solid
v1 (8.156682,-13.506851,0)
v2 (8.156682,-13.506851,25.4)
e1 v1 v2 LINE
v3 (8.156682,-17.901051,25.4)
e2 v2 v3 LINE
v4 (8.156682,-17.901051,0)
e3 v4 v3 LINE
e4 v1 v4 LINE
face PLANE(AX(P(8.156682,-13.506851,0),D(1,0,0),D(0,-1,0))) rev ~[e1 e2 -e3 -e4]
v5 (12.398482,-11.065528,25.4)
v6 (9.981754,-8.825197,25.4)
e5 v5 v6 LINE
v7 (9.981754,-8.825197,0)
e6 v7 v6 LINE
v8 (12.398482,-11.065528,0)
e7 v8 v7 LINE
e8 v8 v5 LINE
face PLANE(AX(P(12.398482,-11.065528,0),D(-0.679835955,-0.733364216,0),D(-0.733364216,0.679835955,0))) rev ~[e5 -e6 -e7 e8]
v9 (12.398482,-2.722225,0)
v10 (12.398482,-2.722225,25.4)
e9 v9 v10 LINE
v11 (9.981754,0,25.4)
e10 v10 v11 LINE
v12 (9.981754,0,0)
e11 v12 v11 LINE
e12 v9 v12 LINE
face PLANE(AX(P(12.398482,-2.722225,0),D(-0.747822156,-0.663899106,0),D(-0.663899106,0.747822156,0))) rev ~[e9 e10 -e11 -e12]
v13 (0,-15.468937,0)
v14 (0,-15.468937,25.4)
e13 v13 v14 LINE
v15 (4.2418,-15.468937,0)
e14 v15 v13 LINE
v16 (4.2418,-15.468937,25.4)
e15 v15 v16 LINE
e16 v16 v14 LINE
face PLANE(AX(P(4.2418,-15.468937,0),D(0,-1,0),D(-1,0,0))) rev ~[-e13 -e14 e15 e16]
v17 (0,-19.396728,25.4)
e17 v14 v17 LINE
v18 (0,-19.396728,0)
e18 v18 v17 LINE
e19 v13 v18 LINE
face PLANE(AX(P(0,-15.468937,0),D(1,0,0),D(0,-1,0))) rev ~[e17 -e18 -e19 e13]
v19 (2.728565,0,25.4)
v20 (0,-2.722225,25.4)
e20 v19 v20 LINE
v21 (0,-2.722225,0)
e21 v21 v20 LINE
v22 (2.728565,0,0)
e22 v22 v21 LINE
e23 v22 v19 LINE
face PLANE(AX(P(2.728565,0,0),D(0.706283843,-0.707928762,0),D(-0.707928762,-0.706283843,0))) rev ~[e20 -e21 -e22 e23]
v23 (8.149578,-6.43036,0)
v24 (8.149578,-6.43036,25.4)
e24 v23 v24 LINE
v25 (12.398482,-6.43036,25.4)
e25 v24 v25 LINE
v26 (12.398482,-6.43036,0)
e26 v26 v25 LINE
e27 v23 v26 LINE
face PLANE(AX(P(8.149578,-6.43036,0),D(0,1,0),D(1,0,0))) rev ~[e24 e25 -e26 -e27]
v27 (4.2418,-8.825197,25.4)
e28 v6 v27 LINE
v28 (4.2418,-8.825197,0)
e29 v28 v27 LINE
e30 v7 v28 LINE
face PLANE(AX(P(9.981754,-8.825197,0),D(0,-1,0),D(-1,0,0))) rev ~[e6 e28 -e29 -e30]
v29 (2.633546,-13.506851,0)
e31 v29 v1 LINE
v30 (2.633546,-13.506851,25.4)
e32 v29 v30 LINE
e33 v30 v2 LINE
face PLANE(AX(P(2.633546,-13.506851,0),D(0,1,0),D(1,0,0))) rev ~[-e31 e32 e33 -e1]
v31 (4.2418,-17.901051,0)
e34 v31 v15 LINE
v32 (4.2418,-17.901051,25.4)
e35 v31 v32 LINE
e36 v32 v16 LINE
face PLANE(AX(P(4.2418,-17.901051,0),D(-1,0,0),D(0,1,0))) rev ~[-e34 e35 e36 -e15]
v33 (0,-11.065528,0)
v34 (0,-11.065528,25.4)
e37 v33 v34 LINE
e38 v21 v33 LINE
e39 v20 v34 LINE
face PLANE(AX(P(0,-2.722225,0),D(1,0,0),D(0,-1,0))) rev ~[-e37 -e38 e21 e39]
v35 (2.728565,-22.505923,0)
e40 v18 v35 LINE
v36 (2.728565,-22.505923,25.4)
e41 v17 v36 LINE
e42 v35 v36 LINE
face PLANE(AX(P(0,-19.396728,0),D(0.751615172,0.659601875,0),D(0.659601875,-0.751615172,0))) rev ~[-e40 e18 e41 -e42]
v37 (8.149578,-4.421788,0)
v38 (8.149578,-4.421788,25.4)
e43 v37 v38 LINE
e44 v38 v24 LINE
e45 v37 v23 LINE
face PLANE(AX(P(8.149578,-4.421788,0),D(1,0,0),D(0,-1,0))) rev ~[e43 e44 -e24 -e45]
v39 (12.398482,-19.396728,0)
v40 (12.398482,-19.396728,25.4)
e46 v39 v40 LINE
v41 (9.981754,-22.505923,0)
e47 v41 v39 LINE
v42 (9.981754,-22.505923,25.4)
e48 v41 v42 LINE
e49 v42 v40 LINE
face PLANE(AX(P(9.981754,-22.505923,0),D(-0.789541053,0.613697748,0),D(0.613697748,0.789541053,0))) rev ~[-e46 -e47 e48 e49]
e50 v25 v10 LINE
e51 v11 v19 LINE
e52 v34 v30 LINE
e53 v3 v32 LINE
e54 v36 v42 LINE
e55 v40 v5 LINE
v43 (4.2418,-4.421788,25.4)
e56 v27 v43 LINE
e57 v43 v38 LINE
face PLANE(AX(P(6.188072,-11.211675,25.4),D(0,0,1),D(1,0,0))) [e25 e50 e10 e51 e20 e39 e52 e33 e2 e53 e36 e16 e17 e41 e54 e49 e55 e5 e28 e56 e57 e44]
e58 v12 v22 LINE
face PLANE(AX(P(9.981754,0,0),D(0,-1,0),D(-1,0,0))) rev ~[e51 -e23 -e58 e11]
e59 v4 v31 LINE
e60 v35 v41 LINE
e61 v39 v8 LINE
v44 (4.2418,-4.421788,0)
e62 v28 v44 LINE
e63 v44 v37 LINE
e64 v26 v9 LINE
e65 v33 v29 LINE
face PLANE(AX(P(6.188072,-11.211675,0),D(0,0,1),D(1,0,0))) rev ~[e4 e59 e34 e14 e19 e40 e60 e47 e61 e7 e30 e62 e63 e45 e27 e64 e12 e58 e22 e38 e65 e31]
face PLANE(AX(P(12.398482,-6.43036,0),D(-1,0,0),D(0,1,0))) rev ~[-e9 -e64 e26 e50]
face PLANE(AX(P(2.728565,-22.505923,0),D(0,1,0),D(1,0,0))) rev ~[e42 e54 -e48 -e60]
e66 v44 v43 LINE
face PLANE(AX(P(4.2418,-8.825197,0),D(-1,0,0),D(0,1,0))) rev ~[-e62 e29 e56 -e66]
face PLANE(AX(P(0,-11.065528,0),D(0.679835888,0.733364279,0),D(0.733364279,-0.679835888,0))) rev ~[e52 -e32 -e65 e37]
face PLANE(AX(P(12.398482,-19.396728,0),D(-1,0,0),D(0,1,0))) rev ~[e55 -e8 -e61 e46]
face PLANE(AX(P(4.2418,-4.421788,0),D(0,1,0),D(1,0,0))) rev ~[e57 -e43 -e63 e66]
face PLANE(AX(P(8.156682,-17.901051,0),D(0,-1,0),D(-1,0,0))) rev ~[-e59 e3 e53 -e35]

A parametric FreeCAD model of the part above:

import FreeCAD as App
import Part
import Sketcher

V = App.Vector
Q = App.Units.Quantity

doc = App.newDocument("Part")
body = doc.addObject("PartDesign::Body", "Body")

# Sketch on XY plane
sketch1 = body.newObject("Sketcher::SketchObject", "Sketch")
sketch1.AttachmentSupport = (doc.getObject("XY_Plane"), [""])
sketch1.MapMode = "FlatFace"
sketch1.addGeometry([
    Part.LineSegment(V(12.4, -2.7, 0), V(10, 0, 0)),  # 0
    Part.LineSegment(V(10, 0, 0), V(2.7, 0, 0)),  # 1
    Part.LineSegment(V(2.7, 0, 0), V(0, -2.7, 0)),  # 2
    Part.LineSegment(V(0, -2.7, 0), V(0, -11.1, 0)),  # 3
    Part.LineSegment(V(0, -11.1, 0), V(2.6, -13.5, 0)),  # 4
    Part.LineSegment(V(2.6, -13.5, 0), V(8.2, -13.5, 0)),  # 5
    Part.LineSegment(V(8.2, -13.5, 0), V(8.2, -17.9, 0)),  # 6
    Part.LineSegment(V(8.2, -17.9, 0), V(4.2, -17.9, 0)),  # 7
    Part.LineSegment(V(4.2, -17.9, 0), V(4.2, -15.5, 0)),  # 8
    Part.LineSegment(V(4.2, -15.5, 0), V(0, -15.5, 0)),  # 9
    Part.LineSegment(V(0, -15.5, 0), V(0, -19.4, 0)),  # 10
    Part.LineSegment(V(0, -19.4, 0), V(2.7, -22.5, 0)),  # 11
    Part.LineSegment(V(2.7, -22.5, 0), V(10, -22.5, 0)),  # 12
    Part.LineSegment(V(10, -22.5, 0), V(12.4, -19.4, 0)),  # 13
    Part.LineSegment(V(12.4, -19.4, 0), V(12.4, -11.1, 0)),  # 14
    Part.LineSegment(V(12.4, -11.1, 0), V(10, -8.8, 0)),  # 15
    Part.LineSegment(V(10, -8.8, 0), V(4.2, -8.8, 0)),  # 16
    Part.LineSegment(V(4.2, -8.8, 0), V(4.2, -4.4, 0)),  # 17
    Part.LineSegment(V(4.2, -4.4, 0), V(8.1, -4.4, 0)),  # 18
    Part.LineSegment(V(8.1, -4.4, 0), V(8.1, -6.4, 0)),  # 19
    Part.LineSegment(V(8.1, -6.4, 0), V(12.4, -6.4, 0)),  # 20
    Part.LineSegment(V(12.4, -6.4, 0), V(12.4, -2.7, 0)),  # 21
], False)
sketch1.addConstraint([
    Sketcher.Constraint("Coincident", 0, 2, 1, 1),
    Sketcher.Constraint("Coincident", 1, 2, 2, 1),
    Sketcher.Constraint("Coincident", 2, 2, 3, 1),
    Sketcher.Constraint("Coincident", 3, 2, 4, 1),
    Sketcher.Constraint("Coincident", 4, 2, 5, 1),
    Sketcher.Constraint("Coincident", 5, 2, 6, 1),
    Sketcher.Constraint("Coincident", 6, 2, 7, 1),
    Sketcher.Constraint("Coincident", 7, 2, 8, 1),
    Sketcher.Constraint("Coincident", 8, 2, 9, 1),
    Sketcher.Constraint("Coincident", 9, 2, 10, 1),
    Sketcher.Constraint("Coincident", 10, 2, 11, 1),
    Sketcher.Constraint("Coincident", 11, 2, 12, 1),
    Sketcher.Constraint("Coincident", 12, 2, 13, 1),
    Sketcher.Constraint("Coincident", 13, 2, 14, 1),
    Sketcher.Constraint("Coincident", 14, 2, 15, 1),
    Sketcher.Constraint("Coincident", 15, 2, 16, 1),
    Sketcher.Constraint("Coincident", 16, 2, 17, 1),
    Sketcher.Constraint("Coincident", 17, 2, 18, 1),
    Sketcher.Constraint("Coincident", 18, 2, 19, 1),
    Sketcher.Constraint("Coincident", 19, 2, 20, 1),
    Sketcher.Constraint("Coincident", 20, 2, 21, 1),
    Sketcher.Constraint("Coincident", 21, 2, 0, 1),
    Sketcher.Constraint("Horizontal", 1),
    Sketcher.Constraint("Vertical", 3),
    Sketcher.Constraint("Horizontal", 5),
    Sketcher.Constraint("Vertical", 6),
    Sketcher.Constraint("Horizontal", 7),
    Sketcher.Constraint("Vertical", 8),
    Sketcher.Constraint("Horizontal", 9),
    Sketcher.Constraint("Vertical", 10),
    Sketcher.Constraint("Horizontal", 12),
    Sketcher.Constraint("Vertical", 14),
    Sketcher.Constraint("Horizontal", 16),
    Sketcher.Constraint("Vertical", 17),
    Sketcher.Constraint("Horizontal", 18),
    Sketcher.Constraint("Vertical", 19),
    Sketcher.Constraint("Horizontal", 20),
    Sketcher.Constraint("Vertical", 21),
    Sketcher.Constraint("PointOnObject", 0, 2, -1),
    Sketcher.Constraint("PointOnObject", 2, 2, -2),
    Sketcher.Constraint("PointOnObject", 9, 2, -2),
    Sketcher.Constraint("Parallel", 4, 15),
    Sketcher.Constraint("Horizontal", 10, 2, 13, 2),
    Sketcher.Constraint("Horizontal", 3, 2, 14, 2),
    Sketcher.Constraint("Horizontal", 2, 2, 21, 2),
    Sketcher.Constraint("Vertical", 1, 2, 11, 2),
    Sketcher.Constraint("Vertical", 0, 2, 12, 2),
    Sketcher.Constraint("Vertical", 12, 2, 15, 2),
    Sketcher.Constraint("Vertical", 8, 2, 16, 2),
    Sketcher.Constraint("Vertical", 14, 2, 20, 2),
    Sketcher.Constraint("DistanceX", 9, 2, 9, 1, Q("0.167 in")),
    Sketcher.Constraint("DistanceY", 6, 2, 6, 1, Q("0.173 in")),
    Sketcher.Constraint("DistanceY", 14, 1, 14, 2, Q("0.328 in")),
    Sketcher.Constraint("DistanceX", 6, 2, 13, 2, Q("0.167 in")),
    Sketcher.Constraint("Distance", 15, 3.295399),
    Sketcher.Constraint("DistanceX", 1, 2, 1, 1, 7.253189),
    Sketcher.Constraint("DistanceX", 18, 1, 18, 2, 3.907778),
    Sketcher.Constraint("DistanceY", 10, 2, 10, 1, 3.927791),
    Sketcher.Constraint("DistanceY", 17, 1, 17, 2, 4.403409),
    Sketcher.Constraint("DistanceY", 19, 2, 19, 1, 2.008572),
    Sketcher.Constraint("DistanceX", 5, 1, 5, 2, 5.523136),
    Sketcher.Constraint("DistanceX", 7, 2, 7, 1, 3.914882),
    Sketcher.Constraint("DistanceX", 16, 2, 16, 1, 5.739954),
    Sketcher.Constraint("DistanceY", 3, 2, 3, 1, 8.343303),
    Sketcher.Constraint("DistanceY", 4, 2, -1, 1, 13.506851),
    Sketcher.Constraint("Distance", 11, 4.136685),
])
pad1 = body.newObject("PartDesign::Pad", "Pad")
pad1.Profile = sketch1
pad1.Length = Q("1 in")

doc.recompute()
